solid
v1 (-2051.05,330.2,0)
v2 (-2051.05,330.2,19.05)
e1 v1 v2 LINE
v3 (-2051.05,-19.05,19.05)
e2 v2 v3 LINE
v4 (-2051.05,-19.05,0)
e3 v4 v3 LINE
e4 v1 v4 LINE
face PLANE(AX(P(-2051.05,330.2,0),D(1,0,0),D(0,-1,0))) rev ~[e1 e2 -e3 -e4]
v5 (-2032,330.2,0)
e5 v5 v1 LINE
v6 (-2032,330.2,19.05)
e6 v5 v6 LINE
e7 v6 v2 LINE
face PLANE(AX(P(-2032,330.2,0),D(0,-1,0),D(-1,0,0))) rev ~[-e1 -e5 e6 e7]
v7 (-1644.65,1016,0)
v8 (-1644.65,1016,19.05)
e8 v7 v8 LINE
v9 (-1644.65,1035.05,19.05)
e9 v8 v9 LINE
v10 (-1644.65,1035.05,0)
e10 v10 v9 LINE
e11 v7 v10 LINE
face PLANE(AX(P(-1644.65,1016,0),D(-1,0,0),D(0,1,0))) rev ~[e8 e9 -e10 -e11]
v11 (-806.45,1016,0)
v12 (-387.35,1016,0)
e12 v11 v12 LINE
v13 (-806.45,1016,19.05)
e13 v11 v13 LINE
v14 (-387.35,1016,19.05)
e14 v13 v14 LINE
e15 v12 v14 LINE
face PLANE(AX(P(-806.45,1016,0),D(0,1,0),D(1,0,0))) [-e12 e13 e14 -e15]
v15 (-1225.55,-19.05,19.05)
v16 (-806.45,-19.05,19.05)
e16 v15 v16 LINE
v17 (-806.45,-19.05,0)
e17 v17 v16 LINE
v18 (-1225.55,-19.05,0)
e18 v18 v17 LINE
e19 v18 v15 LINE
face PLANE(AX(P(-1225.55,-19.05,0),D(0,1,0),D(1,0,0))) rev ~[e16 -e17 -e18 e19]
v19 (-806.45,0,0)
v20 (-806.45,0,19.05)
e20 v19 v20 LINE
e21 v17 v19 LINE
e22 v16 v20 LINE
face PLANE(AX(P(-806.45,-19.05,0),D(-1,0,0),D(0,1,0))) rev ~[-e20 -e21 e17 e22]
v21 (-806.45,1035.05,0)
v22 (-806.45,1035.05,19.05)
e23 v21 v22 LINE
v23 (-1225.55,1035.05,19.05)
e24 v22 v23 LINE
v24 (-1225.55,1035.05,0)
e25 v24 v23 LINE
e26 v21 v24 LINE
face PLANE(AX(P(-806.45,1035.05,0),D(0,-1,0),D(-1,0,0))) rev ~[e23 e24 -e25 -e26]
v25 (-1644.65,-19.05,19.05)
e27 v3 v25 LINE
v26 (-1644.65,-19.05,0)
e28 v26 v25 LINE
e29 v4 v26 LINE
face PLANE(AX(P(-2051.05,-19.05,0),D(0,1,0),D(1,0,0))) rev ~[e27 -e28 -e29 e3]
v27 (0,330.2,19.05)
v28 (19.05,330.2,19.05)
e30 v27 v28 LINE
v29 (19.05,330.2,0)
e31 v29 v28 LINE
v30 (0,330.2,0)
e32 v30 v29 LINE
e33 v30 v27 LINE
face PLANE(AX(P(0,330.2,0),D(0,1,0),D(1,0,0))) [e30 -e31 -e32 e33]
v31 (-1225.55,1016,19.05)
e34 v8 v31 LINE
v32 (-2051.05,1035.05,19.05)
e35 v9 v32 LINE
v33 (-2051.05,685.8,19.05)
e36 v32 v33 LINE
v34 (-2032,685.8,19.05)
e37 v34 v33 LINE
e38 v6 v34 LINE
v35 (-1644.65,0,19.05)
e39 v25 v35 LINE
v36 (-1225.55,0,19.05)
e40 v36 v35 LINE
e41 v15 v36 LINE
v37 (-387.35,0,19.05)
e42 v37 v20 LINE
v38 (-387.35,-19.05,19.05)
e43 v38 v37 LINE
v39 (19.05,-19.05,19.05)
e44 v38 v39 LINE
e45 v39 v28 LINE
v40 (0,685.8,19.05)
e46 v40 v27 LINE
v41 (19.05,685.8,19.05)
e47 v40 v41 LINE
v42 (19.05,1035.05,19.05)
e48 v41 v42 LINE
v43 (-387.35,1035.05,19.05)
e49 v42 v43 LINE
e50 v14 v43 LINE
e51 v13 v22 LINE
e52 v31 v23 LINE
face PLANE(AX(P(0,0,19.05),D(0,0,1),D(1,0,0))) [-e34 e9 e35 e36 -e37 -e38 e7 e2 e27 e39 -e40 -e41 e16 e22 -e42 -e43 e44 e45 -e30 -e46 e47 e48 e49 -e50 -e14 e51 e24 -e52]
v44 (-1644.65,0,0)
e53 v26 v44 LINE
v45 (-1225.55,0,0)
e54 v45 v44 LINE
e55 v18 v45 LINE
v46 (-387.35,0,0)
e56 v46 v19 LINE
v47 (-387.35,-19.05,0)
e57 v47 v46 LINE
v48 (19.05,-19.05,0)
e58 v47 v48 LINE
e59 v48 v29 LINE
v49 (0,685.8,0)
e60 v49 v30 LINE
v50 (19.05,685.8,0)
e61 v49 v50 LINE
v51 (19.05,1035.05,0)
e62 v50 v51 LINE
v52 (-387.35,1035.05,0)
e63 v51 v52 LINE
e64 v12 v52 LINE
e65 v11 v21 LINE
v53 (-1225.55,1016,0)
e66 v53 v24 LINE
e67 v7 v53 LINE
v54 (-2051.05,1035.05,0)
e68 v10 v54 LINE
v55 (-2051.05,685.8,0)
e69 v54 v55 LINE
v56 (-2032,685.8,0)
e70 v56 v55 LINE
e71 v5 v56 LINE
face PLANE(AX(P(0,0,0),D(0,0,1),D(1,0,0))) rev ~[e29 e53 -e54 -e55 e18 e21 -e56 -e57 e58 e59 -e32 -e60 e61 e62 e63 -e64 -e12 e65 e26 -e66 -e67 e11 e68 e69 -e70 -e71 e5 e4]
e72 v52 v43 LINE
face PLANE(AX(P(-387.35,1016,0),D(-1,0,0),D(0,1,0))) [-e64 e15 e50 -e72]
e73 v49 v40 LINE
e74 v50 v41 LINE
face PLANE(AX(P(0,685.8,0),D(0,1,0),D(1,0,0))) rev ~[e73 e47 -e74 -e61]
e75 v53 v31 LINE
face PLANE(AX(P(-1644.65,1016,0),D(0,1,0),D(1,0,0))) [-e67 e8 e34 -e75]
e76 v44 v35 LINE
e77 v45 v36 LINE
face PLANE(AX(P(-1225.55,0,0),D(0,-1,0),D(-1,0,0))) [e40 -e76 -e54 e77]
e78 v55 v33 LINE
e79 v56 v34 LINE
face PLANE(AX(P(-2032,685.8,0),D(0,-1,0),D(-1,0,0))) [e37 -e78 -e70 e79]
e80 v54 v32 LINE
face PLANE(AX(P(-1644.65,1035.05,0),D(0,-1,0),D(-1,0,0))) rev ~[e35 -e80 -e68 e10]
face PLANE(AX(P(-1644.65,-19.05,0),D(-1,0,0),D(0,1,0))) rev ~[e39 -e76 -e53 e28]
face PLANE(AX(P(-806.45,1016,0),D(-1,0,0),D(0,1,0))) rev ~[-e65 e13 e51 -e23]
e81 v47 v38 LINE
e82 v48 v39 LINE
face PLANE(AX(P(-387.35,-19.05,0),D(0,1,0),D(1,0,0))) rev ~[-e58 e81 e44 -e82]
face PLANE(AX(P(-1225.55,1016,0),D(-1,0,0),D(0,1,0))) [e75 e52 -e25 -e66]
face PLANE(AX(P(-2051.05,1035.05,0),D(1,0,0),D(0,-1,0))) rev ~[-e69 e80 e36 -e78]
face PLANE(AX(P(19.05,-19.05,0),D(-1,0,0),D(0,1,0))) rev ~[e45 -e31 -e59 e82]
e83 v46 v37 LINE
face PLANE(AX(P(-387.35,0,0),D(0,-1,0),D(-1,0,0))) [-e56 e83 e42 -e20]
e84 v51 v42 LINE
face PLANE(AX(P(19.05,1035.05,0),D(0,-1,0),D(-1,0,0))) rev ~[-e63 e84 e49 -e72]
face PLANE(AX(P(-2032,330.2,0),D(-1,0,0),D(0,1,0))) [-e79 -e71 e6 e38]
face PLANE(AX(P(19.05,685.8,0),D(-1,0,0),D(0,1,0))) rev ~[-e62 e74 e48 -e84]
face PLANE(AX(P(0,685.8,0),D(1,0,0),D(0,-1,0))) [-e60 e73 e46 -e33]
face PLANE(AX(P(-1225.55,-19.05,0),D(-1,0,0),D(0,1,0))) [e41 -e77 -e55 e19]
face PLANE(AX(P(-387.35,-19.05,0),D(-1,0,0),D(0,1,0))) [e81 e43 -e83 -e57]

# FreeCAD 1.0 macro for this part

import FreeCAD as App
import Part
import Sketcher
Q = App.Units.Quantity

doc = App.newDocument("Part")
body = doc.addObject("PartDesign::Body", "Body")

# Sketch on XY plane
sketch1 = doc.addObject("Sketcher::SketchObject", "Sketch")
body.addObject(sketch1)
sketch1.AttachmentSupport = (doc.XY_Plane, [""])
sketch1.MapMode = "FlatFace"
sketch1.addGeometry([
    Part.LineSegment(App.Vector(19.05, 330.2, 0), App.Vector(0, 330.2, 0)),  # 0
    Part.LineSegment(App.Vector(0, 330.2, 0), App.Vector(0, 685.8, 0)),  # 1
    Part.LineSegment(App.Vector(0, 685.8, 0), App.Vector(19.05, 685.8, 0)),  # 2
    Part.LineSegment(App.Vector(19.05, 685.8, 0), App.Vector(19.05, 1035.05, 0)),  # 3
    Part.LineSegment(App.Vector(19.05, 1035.05, 0), App.Vector(-387.35, 1035.05, 0)),  # 4
    Part.LineSegment(App.Vector(-387.35, 1035.05, 0), App.Vector(-387.35, 1016, 0)),  # 5
    Part.LineSegment(App.Vector(-387.35, 1016, 0), App.Vector(-806.45, 1016, 0)),  # 6
    Part.LineSegment(App.Vector(-806.45, 1016, 0), App.Vector(-806.45, 1035.05, 0)),  # 7
    Part.LineSegment(App.Vector(-806.45, 1035.05, 0), App.Vector(-1225.55, 1035.05, 0)),  # 8
    Part.LineSegment(App.Vector(-1225.55, 1035.05, 0), App.Vector(-1225.55, 1016, 0)),  # 9
    Part.LineSegment(App.Vector(-1225.55, 1016, 0), App.Vector(-1644.65, 1016, 0)),  # 10
    Part.LineSegment(App.Vector(-1644.65, 1016, 0), App.Vector(-1644.65, 1035.05, 0)),  # 11
    Part.LineSegment(App.Vector(-1644.65, 1035.05, 0), App.Vector(-2051.05, 1035.05, 0)),  # 12
    Part.LineSegment(App.Vector(-2051.05, 1035.05, 0), App.Vector(-2051.05, 685.8, 0)),  # 13
    Part.LineSegment(App.Vector(-2051.05, 685.8, 0), App.Vector(-2032, 685.8, 0)),  # 14
    Part.LineSegment(App.Vector(-2032, 685.8, 0), App.Vector(-2032, 330.2, 0)),  # 15
    Part.LineSegment(App.Vector(-2032, 330.2, 0), App.Vector(-2051.05, 330.2, 0)),  # 16
    Part.LineSegment(App.Vector(-2051.05, 330.2, 0), App.Vector(-2051.05, -19.05, 0)),  # 17
    Part.LineSegment(App.Vector(-2051.05, -19.05, 0), App.Vector(-1644.65, -19.05, 0)),  # 18
    Part.LineSegment(App.Vector(-1644.65, -19.05, 0), App.Vector(-1644.65, 0, 0)),  # 19
    Part.LineSegment(App.Vector(-1644.65, 0, 0), App.Vector(-1225.55, 0, 0)),  # 20
    Part.LineSegment(App.Vector(-1225.55, 0, 0), App.Vector(-1225.55, -19.05, 0)),  # 21
    Part.LineSegment(App.Vector(-1225.55, -19.05, 0), App.Vector(-806.45, -19.05, 0)),  # 22
    Part.LineSegment(App.Vector(-806.45, -19.05, 0), App.Vector(-806.45, 0, 0)),  # 23
    Part.LineSegment(App.Vector(-806.45, 0, 0), App.Vector(-387.35, 0, 0)),  # 24
    Part.LineSegment(App.Vector(-387.35, 0, 0), App.Vector(-387.35, -19.05, 0)),  # 25
    Part.LineSegment(App.Vector(-387.35, -19.05, 0), App.Vector(19.05, -19.05, 0)),  # 26
    Part.LineSegment(App.Vector(19.05, -19.05, 0), App.Vector(19.05, 330.2, 0)),  # 27
], False)
sketch1.addConstraint([
    Sketcher.Constraint("Coincident", 0, 2, 1, 1),
    Sketcher.Constraint("Coincident", 1, 2, 2, 1),
    Sketcher.Constraint("Coincident", 2, 2, 3, 1),
    Sketcher.Constraint("Coincident", 3, 2, 4, 1),
    Sketcher.Constraint("Coincident", 4, 2, 5, 1),
    Sketcher.Constraint("Coincident", 5, 2, 6, 1),
    Sketcher.Constraint("Coincident", 6, 2, 7, 1),
    Sketcher.Constraint("Coincident", 7, 2, 8, 1),
    Sketcher.Constraint("Coincident", 8, 2, 9, 1),
    Sketcher.Constraint("Coincident", 9, 2, 10, 1),
    Sketcher.Constraint("Coincident", 10, 2, 11, 1),
    Sketcher.Constraint("Coincident", 11, 2, 12, 1),
    Sketcher.Constraint("Coincident", 12, 2, 13, 1),
    Sketcher.Constraint("Coincident", 13, 2, 14, 1),
    Sketcher.Constraint("Coincident", 14, 2, 15, 1),
    Sketcher.Constraint("Coincident", 15, 2, 16, 1),
    Sketcher.Constraint("Coincident", 16, 2, 17, 1),
    Sketcher.Constraint("Coincident", 17, 2, 18, 1),
    Sketcher.Constraint("Coincident", 18, 2, 19, 1),
    Sketcher.Constraint("Coincident", 19, 2, 20, 1),
    Sketcher.Constraint("Coincident", 20, 2, 21, 1),
    Sketcher.Constraint("Coincident", 21, 2, 22, 1),
    Sketcher.Constraint("Coincident", 22, 2, 23, 1),
    Sketcher.Constraint("Coincident", 23, 2, 24, 1),
    Sketcher.Constraint("Coincident", 24, 2, 25, 1),
    Sketcher.Constraint("Coincident", 25, 2, 26, 1),
    Sketcher.Constraint("Coincident", 26, 2, 27, 1),
    Sketcher.Constraint("Coincident", 27, 2, 0, 1),
    Sketcher.Constraint("Horizontal", 0),
    Sketcher.Constraint("Vertical", 1),
    Sketcher.Constraint("Horizontal", 2),
    Sketcher.Constraint("Vertical", 3),
    Sketcher.Constraint("Horizontal", 4),
    Sketcher.Constraint("Vertical", 5),
    Sketcher.Constraint("Horizontal", 6),
    Sketcher.Constraint("Vertical", 7),
    Sketcher.Constraint("Horizontal", 8),
    Sketcher.Constraint("Vertical", 9),
    Sketcher.Constraint("Horizontal", 10),
    Sketcher.Constraint("Vertical", 11),
    Sketcher.Constraint("Horizontal", 12),
    Sketcher.Constraint("Vertical", 13),
    Sketcher.Constraint("Horizontal", 14),
    Sketcher.Constraint("Vertical", 15),
    Sketcher.Constraint("Horizontal", 16),
    Sketcher.Constraint("Vertical", 17),
    Sketcher.Constraint("Horizontal", 18),
    Sketcher.Constraint("Vertical", 19),
    Sketcher.Constraint("Horizontal", 20),
    Sketcher.Constraint("Vertical", 21),
    Sketcher.Constraint("Horizontal", 22),
    Sketcher.Constraint("Vertical", 23),
    Sketcher.Constraint("Horizontal", 24),
    Sketcher.Constraint("Vertical", 25),
    Sketcher.Constraint("Horizontal", 26),
    Sketcher.Constraint("Vertical", 27),
    Sketcher.Constraint("PointOnObject", 0, 2, -2),
    Sketcher.Constraint("PointOnObject", 19, 2, -1),
    Sketcher.Constraint("PointOnObject", 23, 2, -1),
    Sketcher.Constraint("Horizontal", 4, 2, 7, 2),
    Sketcher.Constraint("Horizontal", 6, 2, 9, 2),
    Sketcher.Constraint("Horizontal", 8, 2, 11, 2),
    Sketcher.Constraint("Horizontal", 2, 2, 13, 2),
    Sketcher.Constraint("Horizontal", 0, 2, 15, 2),
    Sketcher.Constraint("Horizontal", 18, 2, 21, 2),
    Sketcher.Constraint("Horizontal", 22, 2, 25, 2),
    Sketcher.Constraint("Vertical", 13, 2, 16, 2),
    Sketcher.Constraint("Vertical", 11, 2, 18, 2),
    Sketcher.Constraint("Vertical", 9, 2, 20, 2),
    Sketcher.Constraint("Vertical", 7, 2, 22, 2),
    Sketcher.Constraint("Vertical", 5, 2, 24, 2),
    Sketcher.Constraint("Vertical", 3, 2, 26, 2),
    Sketcher.Constraint("Equal", 6, 8),
    Sketcher.Constraint("Equal", 8, 10),
    Sketcher.Constraint("Equal", 4, 12),
    Sketcher.Constraint("Equal", 2, 14),
    Sketcher.Constraint("Equal", 16, 5),
    Sketcher.Constraint("Equal", 13, 17),
    Sketcher.Constraint("Equal", 11, 19),
    Sketcher.Constraint("DistanceX", 4, 2, 4, 1, Q("16 in")),
    Sketcher.Constraint("DistanceY", 1, 1, 1, 2, Q("14 in")),
    Sketcher.Constraint("DistanceX", 6, 2, 6, 1, Q("16.5 in")),
    Sketcher.Constraint("DistanceY", -1, 1, 5, 2, Q("40 in")),
    Sketcher.Constraint("DistanceX", 14, 2, -1, 1, Q("80 in")),
])
pad1 = doc.addObject("PartDesign::Pad", "Pad")
body.addObject(pad1)
pad1.Profile = sketch1
pad1.Length = Q("0.75 in")

doc.recompute()
